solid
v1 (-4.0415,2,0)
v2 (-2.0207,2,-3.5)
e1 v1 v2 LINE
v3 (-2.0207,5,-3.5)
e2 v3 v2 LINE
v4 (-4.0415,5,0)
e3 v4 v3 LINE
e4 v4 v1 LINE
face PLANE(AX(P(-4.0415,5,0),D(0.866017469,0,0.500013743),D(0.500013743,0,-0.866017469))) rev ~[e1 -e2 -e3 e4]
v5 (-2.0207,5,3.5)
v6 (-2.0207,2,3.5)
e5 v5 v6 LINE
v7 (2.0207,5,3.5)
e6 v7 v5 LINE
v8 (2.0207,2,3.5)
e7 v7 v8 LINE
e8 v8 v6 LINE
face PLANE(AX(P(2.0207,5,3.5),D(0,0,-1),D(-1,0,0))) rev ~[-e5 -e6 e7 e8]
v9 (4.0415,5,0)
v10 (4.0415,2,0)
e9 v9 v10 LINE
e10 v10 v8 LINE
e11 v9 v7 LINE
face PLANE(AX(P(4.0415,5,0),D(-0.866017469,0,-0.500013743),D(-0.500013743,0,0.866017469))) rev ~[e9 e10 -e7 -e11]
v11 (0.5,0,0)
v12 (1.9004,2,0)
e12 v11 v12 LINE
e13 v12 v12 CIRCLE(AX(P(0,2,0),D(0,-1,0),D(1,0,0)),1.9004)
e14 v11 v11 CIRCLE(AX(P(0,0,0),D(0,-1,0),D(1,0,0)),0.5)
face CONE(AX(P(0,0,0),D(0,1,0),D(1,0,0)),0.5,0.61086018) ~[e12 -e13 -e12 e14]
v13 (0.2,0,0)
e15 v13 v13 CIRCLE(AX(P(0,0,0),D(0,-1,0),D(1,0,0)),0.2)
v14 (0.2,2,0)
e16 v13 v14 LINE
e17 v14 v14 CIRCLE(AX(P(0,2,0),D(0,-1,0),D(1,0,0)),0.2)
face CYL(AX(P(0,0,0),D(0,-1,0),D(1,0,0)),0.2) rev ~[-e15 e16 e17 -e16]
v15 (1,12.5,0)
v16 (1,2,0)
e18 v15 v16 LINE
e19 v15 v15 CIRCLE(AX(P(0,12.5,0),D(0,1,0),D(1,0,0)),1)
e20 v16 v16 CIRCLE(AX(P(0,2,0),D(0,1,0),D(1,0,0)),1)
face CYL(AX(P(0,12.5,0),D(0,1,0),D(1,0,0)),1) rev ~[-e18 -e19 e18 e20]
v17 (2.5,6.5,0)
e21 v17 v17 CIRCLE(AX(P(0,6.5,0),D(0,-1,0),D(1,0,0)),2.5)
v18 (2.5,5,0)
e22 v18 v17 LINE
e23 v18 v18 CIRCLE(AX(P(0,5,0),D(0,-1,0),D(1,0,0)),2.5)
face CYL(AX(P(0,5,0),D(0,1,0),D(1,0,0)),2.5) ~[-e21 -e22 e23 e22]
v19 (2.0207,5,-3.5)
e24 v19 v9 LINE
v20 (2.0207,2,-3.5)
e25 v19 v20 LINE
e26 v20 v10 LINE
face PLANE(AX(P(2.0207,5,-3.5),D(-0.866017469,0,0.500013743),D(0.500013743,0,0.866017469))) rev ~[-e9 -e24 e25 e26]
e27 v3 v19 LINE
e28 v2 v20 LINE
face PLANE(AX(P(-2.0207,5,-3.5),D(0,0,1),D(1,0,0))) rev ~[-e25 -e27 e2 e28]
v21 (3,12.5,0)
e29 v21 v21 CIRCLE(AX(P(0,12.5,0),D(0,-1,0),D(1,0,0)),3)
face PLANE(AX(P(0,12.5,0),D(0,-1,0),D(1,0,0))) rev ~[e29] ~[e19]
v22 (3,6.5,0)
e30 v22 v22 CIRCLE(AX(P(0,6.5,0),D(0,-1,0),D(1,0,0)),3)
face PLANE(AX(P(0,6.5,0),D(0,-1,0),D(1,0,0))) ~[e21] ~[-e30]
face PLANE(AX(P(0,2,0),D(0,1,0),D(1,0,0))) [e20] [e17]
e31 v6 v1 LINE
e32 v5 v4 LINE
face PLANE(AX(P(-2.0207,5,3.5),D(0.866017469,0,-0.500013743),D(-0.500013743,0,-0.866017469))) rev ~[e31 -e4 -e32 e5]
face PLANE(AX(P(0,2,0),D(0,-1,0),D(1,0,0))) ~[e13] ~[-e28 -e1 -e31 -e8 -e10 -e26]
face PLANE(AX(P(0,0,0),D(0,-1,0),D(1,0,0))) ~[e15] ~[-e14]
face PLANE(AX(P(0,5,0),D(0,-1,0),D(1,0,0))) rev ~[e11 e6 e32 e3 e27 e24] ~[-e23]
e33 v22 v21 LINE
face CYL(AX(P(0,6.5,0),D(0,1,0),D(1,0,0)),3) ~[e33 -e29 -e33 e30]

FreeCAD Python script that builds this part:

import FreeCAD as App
import Part
import Sketcher
Q = App.Units.Quantity


def add_polygon(sketch, points):
    """Adds a closed chain of lines whose ends are joined by coincident constraints."""
    first, n = sketch.GeometryCount, len(points)
    for a, b in zip(points, points[1:] + points[:1]):
        sketch.addGeometry(Part.LineSegment(App.Vector(*a, 0), App.Vector(*b, 0)), False)
    for i in range(n):
        sketch.addConstraint(Sketcher.Constraint("Coincident", first + i, 2, first + (i + 1) % n, 1))

doc = App.newDocument("Part")
body = doc.addObject("PartDesign::Body", "Body")

sketch1 = body.newObject("Sketcher::SketchObject", "Sketch")
sketch1.AttachmentSupport = (doc.getObject("XY_Plane"), [""])
sketch1.MapMode = "FlatFace"
add_polygon(sketch1, [(0, 12.5), (0, 0), (0.5, 0), (1.9004, 2), (4.5, 2), (4.5, 5), (2.5, 5), (2.5, 6.5), (3, 6.5), (3, 12.5)])
sketch1.addConstraint([
    Sketcher.Constraint("Vertical", 0),
    Sketcher.Constraint("Horizontal", 1),
    Sketcher.Constraint("Horizontal", 3),
    Sketcher.Constraint("Vertical", 4),
    Sketcher.Constraint("Horizontal", 5),
    Sketcher.Constraint("Vertical", 6),
    Sketcher.Constraint("Horizontal", 7),
    Sketcher.Constraint("Vertical", 8),
    Sketcher.Constraint("Horizontal", 9),
    Sketcher.Constraint("Coincident", 0, 2, -1, 1),
    Sketcher.Constraint("Equal", 1, 7),
    Sketcher.Constraint("Equal", 9, 4),
    Sketcher.Constraint("DistanceX", 9, 2, 9, 1, Q("3 mm")),
    Sketcher.Constraint("DistanceX", 1, 1, 1, 2, Q("0.5 mm")),
    Sketcher.Constraint("DistanceY", 0, 2, 0, 1, Q("12.5 mm")),
    Sketcher.Constraint("DistanceY", 6, 1, 6, 2, Q("1.5 mm")),
    Sketcher.Constraint("DistanceX", -1, 1, 3, 2, Q("4.5 mm")),
    Sketcher.Constraint("DistanceY", 2, 2, 8, 2, Q("10.5 mm")),
    Sketcher.Constraint("Angle", 2, Q("55.0003 deg")),
])
revolution = body.newObject("PartDesign::Revolution", "Revolution")
revolution.Profile = sketch1
revolution.ReferenceAxis = (sketch1, ["V_Axis"])
revolution.Angle = 360

sketch2 = body.newObject("Sketcher::SketchObject", "Sketch001")
sketch2.AttachmentSupport = (doc.getObject("XZ_Plane"), [""])
sketch2.MapMode = "FlatFace"
sketch2.AttachmentOffset = App.Placement(App.Vector(0, 0, -5), App.Rotation())
sketch2.addGeometry(Part.Circle(App.Vector(0, 0, 0), App.Vector(0, 0, 1), 4.5), False)
add_polygon(sketch2, [(2.0207, -3.5), (4.0415, 0), (2.0207, 3.5), (-2.0207, 3.5), (-4.0415, 0), (-2.0207, -3.5)])
sketch2.addConstraint([
    Sketcher.Constraint("Horizontal", 3),
    Sketcher.Constraint("Horizontal", 6),
    Sketcher.Constraint("Coincident", 0, 3, -1, 1),
    Sketcher.Constraint("Symmetric", 1, 2, 4, 2, -1, 1),
    Sketcher.Constraint("Symmetric", 2, 2, 5, 2, -1, 1),
    Sketcher.Constraint("PointOnObject", 1, 2, -1),
    Sketcher.Constraint("Parallel", 1, 4),
    Sketcher.Constraint("Vertical", 3, 2, 5, 2),
    Sketcher.Constraint("Diameter", 0, Q("9 mm")),
    Sketcher.Constraint("DistanceY", 5, 2, 3, 2, Q("7 mm")),
    Sketcher.Constraint("Angle", 1, Q("59.999 deg")),
    Sketcher.Constraint("DistanceX", 3, 2, 3, 1, Q("4.0414 mm")),
])
pocket1 = body.newObject("PartDesign::Pocket", "Pocket")
pocket1.Profile = sketch2
pocket1.Length = 3
pocket1.Reversed = True

sketch3 = body.newObject("Sketcher::SketchObject", "Sketch002")
sketch3.AttachmentSupport = (doc.getObject("XZ_Plane"), [""])
sketch3.MapMode = "FlatFace"
sketch3.AttachmentOffset = App.Placement(App.Vector(0, 0, -12.5), App.Rotation())
sketch3.addGeometry(Part.Circle(App.Vector(0, 0, 0), App.Vector(0, 0, 1), 1), False)
sketch3.addConstraint([
    Sketcher.Constraint("Coincident", 0, 3, -1, 1),
    Sketcher.Constraint("Diameter", 0, Q("2 mm")),
])
pocket2 = body.newObject("PartDesign::Pocket", "Pocket001")
pocket2.Profile = sketch3
pocket2.Length = 10.5
pocket2.Reversed = True

sketch4 = body.newObject("Sketcher::SketchObject", "Sketch003")
sketch4.AttachmentSupport = (doc.getObject("XZ_Plane"), [""])
sketch4.MapMode = "FlatFace"
sketch4.addGeometry(Part.Circle(App.Vector(0, 0, 0), App.Vector(0, 0, 1), 0.2), False)
sketch4.addConstraint([
    Sketcher.Constraint("Coincident", 0, 3, -1, 1),
    Sketcher.Constraint("Diameter", 0, Q("0.4 mm")),
])
pocket3 = body.newObject("PartDesign::Pocket", "Pocket002")
pocket3.Profile = sketch4
pocket3.Length = 2

doc.recompute()
